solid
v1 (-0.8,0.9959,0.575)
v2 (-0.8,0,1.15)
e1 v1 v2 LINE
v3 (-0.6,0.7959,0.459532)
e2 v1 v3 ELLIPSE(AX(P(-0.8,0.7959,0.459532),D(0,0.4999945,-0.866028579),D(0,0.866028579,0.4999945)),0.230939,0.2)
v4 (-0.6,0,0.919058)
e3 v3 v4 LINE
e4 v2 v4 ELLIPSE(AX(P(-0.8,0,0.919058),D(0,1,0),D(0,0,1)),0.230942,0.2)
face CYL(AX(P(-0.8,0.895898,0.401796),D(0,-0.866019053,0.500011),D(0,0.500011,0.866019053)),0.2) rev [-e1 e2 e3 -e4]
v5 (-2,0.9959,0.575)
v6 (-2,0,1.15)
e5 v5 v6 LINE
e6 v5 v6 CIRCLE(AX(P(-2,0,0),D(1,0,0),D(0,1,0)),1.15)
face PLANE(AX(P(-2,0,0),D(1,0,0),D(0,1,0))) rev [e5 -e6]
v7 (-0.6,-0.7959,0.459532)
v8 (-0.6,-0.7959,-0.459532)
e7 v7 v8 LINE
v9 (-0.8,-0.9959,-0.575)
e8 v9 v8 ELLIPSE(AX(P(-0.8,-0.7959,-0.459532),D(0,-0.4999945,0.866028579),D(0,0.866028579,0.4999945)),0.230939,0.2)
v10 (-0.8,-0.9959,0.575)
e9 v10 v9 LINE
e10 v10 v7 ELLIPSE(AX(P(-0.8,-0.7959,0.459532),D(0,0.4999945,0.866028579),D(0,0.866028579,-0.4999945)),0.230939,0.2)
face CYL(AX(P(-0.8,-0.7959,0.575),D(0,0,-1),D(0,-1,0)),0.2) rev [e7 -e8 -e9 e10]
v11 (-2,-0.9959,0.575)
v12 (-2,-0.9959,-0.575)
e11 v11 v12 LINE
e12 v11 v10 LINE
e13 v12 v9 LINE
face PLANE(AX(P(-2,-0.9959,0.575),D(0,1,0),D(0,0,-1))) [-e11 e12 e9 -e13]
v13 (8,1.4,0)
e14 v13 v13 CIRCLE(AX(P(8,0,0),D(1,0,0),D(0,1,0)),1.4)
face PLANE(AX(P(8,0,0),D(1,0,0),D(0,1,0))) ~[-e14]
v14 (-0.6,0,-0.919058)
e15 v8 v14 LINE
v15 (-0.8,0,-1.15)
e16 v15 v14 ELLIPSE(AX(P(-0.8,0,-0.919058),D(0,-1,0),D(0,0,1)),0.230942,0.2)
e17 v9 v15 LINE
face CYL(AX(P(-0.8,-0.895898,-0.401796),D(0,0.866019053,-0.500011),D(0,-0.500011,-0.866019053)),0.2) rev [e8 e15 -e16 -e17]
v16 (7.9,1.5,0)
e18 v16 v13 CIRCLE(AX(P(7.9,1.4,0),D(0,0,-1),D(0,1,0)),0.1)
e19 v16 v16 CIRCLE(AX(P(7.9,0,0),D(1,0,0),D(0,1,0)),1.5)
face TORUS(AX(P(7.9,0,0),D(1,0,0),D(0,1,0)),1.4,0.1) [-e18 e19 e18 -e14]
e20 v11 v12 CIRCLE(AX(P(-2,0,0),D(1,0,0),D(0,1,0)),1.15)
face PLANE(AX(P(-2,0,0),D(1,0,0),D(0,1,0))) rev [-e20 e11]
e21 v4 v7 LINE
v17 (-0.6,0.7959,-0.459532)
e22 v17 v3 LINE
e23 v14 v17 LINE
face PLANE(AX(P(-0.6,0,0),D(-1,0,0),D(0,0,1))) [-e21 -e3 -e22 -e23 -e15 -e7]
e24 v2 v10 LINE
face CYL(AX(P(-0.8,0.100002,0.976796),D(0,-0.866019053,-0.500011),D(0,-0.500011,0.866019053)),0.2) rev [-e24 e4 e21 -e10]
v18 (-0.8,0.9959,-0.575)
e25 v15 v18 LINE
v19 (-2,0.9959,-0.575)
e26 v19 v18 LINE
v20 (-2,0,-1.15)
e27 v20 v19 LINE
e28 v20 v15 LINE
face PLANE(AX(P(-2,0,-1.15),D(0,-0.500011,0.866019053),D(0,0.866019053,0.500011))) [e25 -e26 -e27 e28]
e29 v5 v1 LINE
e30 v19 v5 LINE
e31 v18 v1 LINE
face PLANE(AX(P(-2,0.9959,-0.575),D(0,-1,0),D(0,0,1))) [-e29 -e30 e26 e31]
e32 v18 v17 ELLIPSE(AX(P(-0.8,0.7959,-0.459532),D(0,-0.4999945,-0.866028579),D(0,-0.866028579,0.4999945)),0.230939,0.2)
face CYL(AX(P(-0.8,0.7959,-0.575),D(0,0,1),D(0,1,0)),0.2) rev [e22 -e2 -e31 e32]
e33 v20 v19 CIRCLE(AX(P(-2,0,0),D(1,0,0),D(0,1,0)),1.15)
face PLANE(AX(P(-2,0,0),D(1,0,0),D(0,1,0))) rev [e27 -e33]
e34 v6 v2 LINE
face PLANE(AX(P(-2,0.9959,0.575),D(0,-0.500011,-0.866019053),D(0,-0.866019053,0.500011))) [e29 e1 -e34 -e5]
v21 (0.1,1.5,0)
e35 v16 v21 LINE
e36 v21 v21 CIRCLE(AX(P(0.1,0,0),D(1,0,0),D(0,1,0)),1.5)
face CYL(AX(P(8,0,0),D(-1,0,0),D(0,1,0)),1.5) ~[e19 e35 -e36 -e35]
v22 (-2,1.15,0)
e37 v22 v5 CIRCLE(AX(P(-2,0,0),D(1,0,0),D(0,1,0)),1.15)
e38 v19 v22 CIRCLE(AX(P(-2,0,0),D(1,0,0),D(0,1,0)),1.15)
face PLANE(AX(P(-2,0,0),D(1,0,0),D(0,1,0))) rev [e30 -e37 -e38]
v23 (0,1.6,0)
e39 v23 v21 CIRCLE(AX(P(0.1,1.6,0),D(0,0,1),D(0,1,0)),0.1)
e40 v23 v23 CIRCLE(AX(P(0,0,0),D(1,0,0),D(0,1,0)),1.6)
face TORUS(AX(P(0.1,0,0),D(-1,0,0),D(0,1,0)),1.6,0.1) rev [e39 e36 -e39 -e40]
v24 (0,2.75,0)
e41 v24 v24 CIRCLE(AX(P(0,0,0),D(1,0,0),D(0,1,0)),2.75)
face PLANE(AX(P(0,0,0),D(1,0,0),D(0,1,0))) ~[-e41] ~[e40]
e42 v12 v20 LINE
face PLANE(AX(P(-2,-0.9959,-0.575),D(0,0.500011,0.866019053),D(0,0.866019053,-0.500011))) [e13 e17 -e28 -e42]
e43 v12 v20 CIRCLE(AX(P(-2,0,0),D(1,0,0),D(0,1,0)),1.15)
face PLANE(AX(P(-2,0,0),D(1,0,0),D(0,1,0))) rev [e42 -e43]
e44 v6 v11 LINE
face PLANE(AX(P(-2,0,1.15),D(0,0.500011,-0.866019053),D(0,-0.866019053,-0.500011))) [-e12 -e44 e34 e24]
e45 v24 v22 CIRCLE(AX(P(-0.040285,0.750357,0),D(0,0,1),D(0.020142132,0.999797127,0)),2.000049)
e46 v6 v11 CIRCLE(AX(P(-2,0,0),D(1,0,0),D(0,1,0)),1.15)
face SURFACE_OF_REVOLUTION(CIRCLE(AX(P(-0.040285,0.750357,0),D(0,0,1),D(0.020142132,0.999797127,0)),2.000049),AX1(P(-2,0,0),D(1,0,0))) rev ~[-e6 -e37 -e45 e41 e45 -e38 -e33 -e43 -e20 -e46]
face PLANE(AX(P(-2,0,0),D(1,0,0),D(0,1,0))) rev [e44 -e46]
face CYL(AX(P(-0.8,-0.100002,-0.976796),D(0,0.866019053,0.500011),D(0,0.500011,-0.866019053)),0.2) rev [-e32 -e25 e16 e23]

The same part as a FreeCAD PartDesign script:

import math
import FreeCAD as App
import Part
import Sketcher
Q = App.Units.Quantity


def edges_at(feature, points):
    """Names of the edges that pass closest to the given points."""
    edges = feature.Shape.Edges
    near = lambda p: min(range(len(edges)), key=lambda i: edges[i].distToShape(Part.Vertex(*p))[0])
    return sorted({f"Edge{near(p) + 1}" for p in points})


def add_polygon(sketch, points):
    """Adds a closed chain of lines whose ends are joined by coincident constraints."""
    first, n = sketch.GeometryCount, len(points)
    for a, b in zip(points, points[1:] + points[:1]):
        sketch.addGeometry(Part.LineSegment(App.Vector(*a, 0), App.Vector(*b, 0)), False)
    for i in range(n):
        sketch.addConstraint(Sketcher.Constraint("Coincident", first + i, 2, first + (i + 1) % n, 1))

doc = App.newDocument("Part")
body = doc.addObject("PartDesign::Body", "Body")

# Sketch on XY plane
sketch1 = doc.addObject("Sketcher::SketchObject", "Sketch")
body.addObject(sketch1)
sketch1.AttachmentSupport = (doc.XY_Plane, [""])
sketch1.MapMode = "FlatFace"
sketch1.addGeometry([
    Part.LineSegment(App.Vector(8, 1.5, 0), App.Vector(0, 1.5, 0)),  # 0
    Part.LineSegment(App.Vector(0, 1.5, 0), App.Vector(0, 2.8, 0)),  # 1
    Part.ArcOfCircle(Part.Circle(App.Vector(0, 0.8, 0), App.Vector(0, 0, 1), 2), math.radians(89), math.radians(168)),  # 2
    Part.LineSegment(App.Vector(-2, 1.1, 0), App.Vector(-2, 0, 0)),  # 3
    Part.LineSegment(App.Vector(-2, 0, 0), App.Vector(8, 0, 0)),  # 4
    Part.LineSegment(App.Vector(8, 0, 0), App.Vector(8, 1.5, 0)),  # 5
], False)
sketch1.addConstraint([
    Sketcher.Constraint("Coincident", 0, 2, 1, 1),
    Sketcher.Constraint("Coincident", 1, 2, 2, 1),
    Sketcher.Constraint("Coincident", 2, 2, 3, 1),
    Sketcher.Constraint("Coincident", 3, 2, 4, 1),
    Sketcher.Constraint("Coincident", 4, 2, 5, 1),
    Sketcher.Constraint("Coincident", 5, 2, 0, 1),
    Sketcher.Constraint("Horizontal", 0),
    Sketcher.Constraint("Vertical", 1),
    Sketcher.Constraint("Vertical", 3),
    Sketcher.Constraint("Horizontal", 4),
    Sketcher.Constraint("Vertical", 5),
    Sketcher.Constraint("PointOnObject", 0, 2, -2),
    Sketcher.Constraint("PointOnObject", 3, 2, -1),
    Sketcher.Constraint("Radius", 2, Q("2 mm")),
    Sketcher.Constraint("DistanceX", 0, 2, 0, 1, Q("8 mm")),
    Sketcher.Constraint("DistanceY", 5, 1, 5, 2, Q("1.5 mm")),
    Sketcher.Constraint("DistanceX", 2, 2, -1, 1, Q("2 mm")),
    Sketcher.Constraint("DistanceY", 3, 2, 3, 1, Q("1.15 mm")),
    Sketcher.Constraint("DistanceY", -1, 1, 1, 2, Q("2.75 mm")),
])
revolution = doc.addObject("PartDesign::Revolution", "Revolution")
body.addObject(revolution)
revolution.Profile = sketch1
revolution.ReferenceAxis = (sketch1, ["H_Axis"])
revolution.Angle = 360

# Sketch on YZ plane
sketch2 = doc.addObject("Sketcher::SketchObject", "Sketch001")
body.addObject(sketch2)
sketch2.AttachmentSupport = (doc.YZ_Plane, [""])
sketch2.MapMode = "FlatFace"
sketch2.AttachmentOffset = App.Placement(App.Vector(0, 0, -2), App.Rotation())
add_polygon(sketch2, [(-1, 0.6), (0, 1.1), (1, 0.6), (1, -0.6), (0, -1.1), (-1, -0.6)])  # lines 0-5
sketch2.addConstraint([
    Sketcher.Constraint("Vertical", 2),
    Sketcher.Constraint("Vertical", 5),
    Sketcher.Constraint("Symmetric", 0, 2, 3, 2, -1, 1),
    Sketcher.Constraint("Symmetric", 1, 2, 4, 2, -1, 1),
    Sketcher.Constraint("PointOnObject", 0, 2, -2),
    Sketcher.Constraint("Parallel", 0, 3),
    Sketcher.Constraint("Horizontal", 2, 2, 4, 2),
    Sketcher.Constraint("DistanceY", 2, 2, 2, 1, Q("1.15 mm")),
    Sketcher.Constraint("Distance", 0, Q("1.15 mm")),
    Sketcher.Constraint("DistanceY", -1, 1, 0, 2, Q("1.15 mm")),
])
pocket1 = doc.addObject("PartDesign::Pocket", "Pocket")
body.addObject(pocket1)
pocket1.Profile = sketch2
pocket1.Length = 1.4
pocket1.Reversed = True
doc.recompute()

fillet = doc.addObject("PartDesign::Fillet", "Fillet")
body.addObject(fillet)
fillet.Base = (pocket1, edges_at(pocket1, [
    (-0.6, 0.996, 0),
    (-0.6, 0.498, 0.863),
    (-0.6, 0.498, -0.863),
    (-0.6, -0.498, -0.863),
    (-0.6, -0.996, 0),
    (-0.6, -0.498, 0.863),
]))
fillet.Radius = 0.2
doc.recompute()

fillet2 = doc.addObject("PartDesign::Fillet", "Fillet001")
body.addObject(fillet2)
fillet2.Base = (fillet, edges_at(fillet, [(0, -1.5, 0)]))
fillet2.Radius = 0.1
doc.recompute()

fillet3 = doc.addObject("PartDesign::Fillet", "Fillet002")
body.addObject(fillet3)
fillet3.Base = (fillet2, edges_at(fillet2, [(8, -1.5, 0)]))
fillet3.Radius = 0.1

doc.recompute()
